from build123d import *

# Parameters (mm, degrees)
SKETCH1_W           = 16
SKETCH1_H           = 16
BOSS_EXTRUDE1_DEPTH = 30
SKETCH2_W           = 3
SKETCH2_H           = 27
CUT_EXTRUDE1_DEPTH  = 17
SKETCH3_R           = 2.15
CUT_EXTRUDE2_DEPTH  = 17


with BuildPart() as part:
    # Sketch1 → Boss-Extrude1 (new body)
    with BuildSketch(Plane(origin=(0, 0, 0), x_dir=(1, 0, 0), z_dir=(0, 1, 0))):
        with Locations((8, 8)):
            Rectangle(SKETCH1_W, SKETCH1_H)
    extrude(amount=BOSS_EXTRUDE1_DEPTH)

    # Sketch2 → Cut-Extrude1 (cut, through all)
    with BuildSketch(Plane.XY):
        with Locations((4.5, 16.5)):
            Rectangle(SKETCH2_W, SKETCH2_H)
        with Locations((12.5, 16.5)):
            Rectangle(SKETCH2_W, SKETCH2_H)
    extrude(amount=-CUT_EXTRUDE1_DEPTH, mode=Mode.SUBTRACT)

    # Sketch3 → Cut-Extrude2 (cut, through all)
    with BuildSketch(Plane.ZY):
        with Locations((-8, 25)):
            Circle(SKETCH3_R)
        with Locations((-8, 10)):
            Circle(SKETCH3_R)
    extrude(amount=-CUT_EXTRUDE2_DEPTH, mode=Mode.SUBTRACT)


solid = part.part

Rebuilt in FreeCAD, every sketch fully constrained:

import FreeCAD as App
import Part
import Sketcher

doc = App.newDocument("Part")
body = doc.addObject("PartDesign::Body", "Body")

# Sketch on XZ plane
sketch1 = body.newObject("Sketcher::SketchObject", "Sketch")
sketch1.AttachmentSupport = (doc.getObject("XZ_Plane"), [""])
sketch1.MapMode = "FlatFace"
sketch1.addGeometry(Part.LineSegment(App.Vector(0, -16, 0), App.Vector(0, 0, 0)), False)
sketch1.addGeometry(Part.LineSegment(App.Vector(0, 0, 0), App.Vector(16, 0, 0)), False)
sketch1.addGeometry(Part.LineSegment(App.Vector(16, 0, 0), App.Vector(16, -16, 0)), False)
sketch1.addGeometry(Part.LineSegment(App.Vector(16, -16, 0), App.Vector(0, -16, 0)), False)
sketch1.addConstraint(Sketcher.Constraint("Coincident", 0, 2, 1, 1))
sketch1.addConstraint(Sketcher.Constraint("Coincident", 1, 2, 2, 1))
sketch1.addConstraint(Sketcher.Constraint("Coincident", 2, 2, 3, 1))
sketch1.addConstraint(Sketcher.Constraint("Coincident", 3, 2, 0, 1))
sketch1.addConstraint(Sketcher.Constraint("Vertical", 0))
sketch1.addConstraint(Sketcher.Constraint("Horizontal", 1))
sketch1.addConstraint(Sketcher.Constraint("Vertical", 2))
sketch1.addConstraint(Sketcher.Constraint("Horizontal", 3))
sketch1.addConstraint(Sketcher.Constraint("Coincident", 0, 2, -1, 1))
sketch1.addConstraint(Sketcher.Constraint("Equal", 3, 0))
sketch1.addConstraint(Sketcher.Constraint("DistanceX", 1, 1, 1, 2, 16.0))
pad1 = body.newObject("PartDesign::Pad", "Pad")
pad1.Profile = sketch1
pad1.Length = 30
pad1.Reversed = True

# Sketch on XY plane
sketch2 = body.newObject("Sketcher::SketchObject", "Sketch001")
sketch2.AttachmentSupport = (doc.getObject("XY_Plane"), [""])
sketch2.MapMode = "FlatFace"
sketch2.addGeometry(Part.LineSegment(App.Vector(3, 30, 0), App.Vector(3, 3, 0)), False)
sketch2.addGeometry(Part.LineSegment(App.Vector(3, 3, 0), App.Vector(6, 3, 0)), False)
sketch2.addGeometry(Part.LineSegment(App.Vector(6, 3, 0), App.Vector(6, 30, 0)), False)
sketch2.addGeometry(Part.LineSegment(App.Vector(6, 30, 0), App.Vector(3, 30, 0)), False)
sketch2.addGeometry(Part.LineSegment(App.Vector(11, 30, 0), App.Vector(11, 3, 0)), False)
sketch2.addGeometry(Part.LineSegment(App.Vector(11, 3, 0), App.Vector(14, 3, 0)), False)
sketch2.addGeometry(Part.LineSegment(App.Vector(14, 3, 0), App.Vector(14, 30, 0)), False)
sketch2.addGeometry(Part.LineSegment(App.Vector(14, 30, 0), App.Vector(11, 30, 0)), False)
sketch2.addConstraint(Sketcher.Constraint("Coincident", 0, 2, 1, 1))
sketch2.addConstraint(Sketcher.Constraint("Coincident", 1, 2, 2, 1))
sketch2.addConstraint(Sketcher.Constraint("Coincident", 2, 2, 3, 1))
sketch2.addConstraint(Sketcher.Constraint("Coincident", 3, 2, 0, 1))
sketch2.addConstraint(Sketcher.Constraint("Coincident", 4, 2, 5, 1))
sketch2.addConstraint(Sketcher.Constraint("Coincident", 5, 2, 6, 1))
sketch2.addConstraint(Sketcher.Constraint("Coincident", 6, 2, 7, 1))
sketch2.addConstraint(Sketcher.Constraint("Coincident", 7, 2, 4, 1))
sketch2.addConstraint(Sketcher.Constraint("Vertical", 0))
sketch2.addConstraint(Sketcher.Constraint("Horizontal", 1))
sketch2.addConstraint(Sketcher.Constraint("Vertical", 2))
sketch2.addConstraint(Sketcher.Constraint("Horizontal", 3))
sketch2.addConstraint(Sketcher.Constraint("Vertical", 4))
sketch2.addConstraint(Sketcher.Constraint("Horizontal", 5))
sketch2.addConstraint(Sketcher.Constraint("Vertical", 6))
sketch2.addConstraint(Sketcher.Constraint("Horizontal", 7))
sketch2.addConstraint(Sketcher.Constraint("Horizontal", 1, 2, 4, 2))
sketch2.addConstraint(Sketcher.Constraint("Horizontal", 3, 2, 6, 2))
sketch2.addConstraint(Sketcher.Constraint("Equal", 3, 5))
sketch2.addConstraint(Sketcher.Constraint("DistanceX", 1, 1, 1, 2, 3.0))
sketch2.addConstraint(Sketcher.Constraint("DistanceY", 0, 2, 0, 1, 27.0))
sketch2.addConstraint(Sketcher.Constraint("DistanceX", -1, 1, 0, 2, 3.0))
sketch2.addConstraint(Sketcher.Constraint("DistanceY", -1, 1, 0, 2, 3.0))
sketch2.addConstraint(Sketcher.Constraint("DistanceX", -1, 1, 4, 2, 11.0))
pocket1 = body.newObject("PartDesign::Pocket", "Pocket")
pocket1.Profile = sketch2
pocket1.Type = "ThroughAll"

# Sketch on YZ plane
sketch3 = body.newObject("Sketcher::SketchObject", "Sketch002")
sketch3.AttachmentSupport = (doc.getObject("YZ_Plane"), [""])
sketch3.MapMode = "FlatFace"
sketch3.addGeometry(Part.Circle(App.Vector(25, -8, 0), App.Vector(0, 0, 1), 2.1), False)
sketch3.addGeometry(Part.Circle(App.Vector(10, -8, 0), App.Vector(0, 0, 1), 2.1), False)
sketch3.addConstraint(Sketcher.Constraint("Equal", 0, 1))
sketch3.addConstraint(Sketcher.Constraint("Horizontal", 0, 3, 1, 3))
sketch3.addConstraint(Sketcher.Constraint("Diameter", 0, 4.3))
sketch3.addConstraint(Sketcher.Constraint("DistanceX", -1, 1, 0, 3, 25.0))
sketch3.addConstraint(Sketcher.Constraint("DistanceY", 0, 3, -1, 1, 8.0))
sketch3.addConstraint(Sketcher.Constraint("DistanceX", -1, 1, 1, 3, 10.0))
pocket2 = body.newObject("PartDesign::Pocket", "Pocket001")
pocket2.Profile = sketch3
pocket2.Type = "ThroughAll"
pocket2.Reversed = True

doc.recompute()
